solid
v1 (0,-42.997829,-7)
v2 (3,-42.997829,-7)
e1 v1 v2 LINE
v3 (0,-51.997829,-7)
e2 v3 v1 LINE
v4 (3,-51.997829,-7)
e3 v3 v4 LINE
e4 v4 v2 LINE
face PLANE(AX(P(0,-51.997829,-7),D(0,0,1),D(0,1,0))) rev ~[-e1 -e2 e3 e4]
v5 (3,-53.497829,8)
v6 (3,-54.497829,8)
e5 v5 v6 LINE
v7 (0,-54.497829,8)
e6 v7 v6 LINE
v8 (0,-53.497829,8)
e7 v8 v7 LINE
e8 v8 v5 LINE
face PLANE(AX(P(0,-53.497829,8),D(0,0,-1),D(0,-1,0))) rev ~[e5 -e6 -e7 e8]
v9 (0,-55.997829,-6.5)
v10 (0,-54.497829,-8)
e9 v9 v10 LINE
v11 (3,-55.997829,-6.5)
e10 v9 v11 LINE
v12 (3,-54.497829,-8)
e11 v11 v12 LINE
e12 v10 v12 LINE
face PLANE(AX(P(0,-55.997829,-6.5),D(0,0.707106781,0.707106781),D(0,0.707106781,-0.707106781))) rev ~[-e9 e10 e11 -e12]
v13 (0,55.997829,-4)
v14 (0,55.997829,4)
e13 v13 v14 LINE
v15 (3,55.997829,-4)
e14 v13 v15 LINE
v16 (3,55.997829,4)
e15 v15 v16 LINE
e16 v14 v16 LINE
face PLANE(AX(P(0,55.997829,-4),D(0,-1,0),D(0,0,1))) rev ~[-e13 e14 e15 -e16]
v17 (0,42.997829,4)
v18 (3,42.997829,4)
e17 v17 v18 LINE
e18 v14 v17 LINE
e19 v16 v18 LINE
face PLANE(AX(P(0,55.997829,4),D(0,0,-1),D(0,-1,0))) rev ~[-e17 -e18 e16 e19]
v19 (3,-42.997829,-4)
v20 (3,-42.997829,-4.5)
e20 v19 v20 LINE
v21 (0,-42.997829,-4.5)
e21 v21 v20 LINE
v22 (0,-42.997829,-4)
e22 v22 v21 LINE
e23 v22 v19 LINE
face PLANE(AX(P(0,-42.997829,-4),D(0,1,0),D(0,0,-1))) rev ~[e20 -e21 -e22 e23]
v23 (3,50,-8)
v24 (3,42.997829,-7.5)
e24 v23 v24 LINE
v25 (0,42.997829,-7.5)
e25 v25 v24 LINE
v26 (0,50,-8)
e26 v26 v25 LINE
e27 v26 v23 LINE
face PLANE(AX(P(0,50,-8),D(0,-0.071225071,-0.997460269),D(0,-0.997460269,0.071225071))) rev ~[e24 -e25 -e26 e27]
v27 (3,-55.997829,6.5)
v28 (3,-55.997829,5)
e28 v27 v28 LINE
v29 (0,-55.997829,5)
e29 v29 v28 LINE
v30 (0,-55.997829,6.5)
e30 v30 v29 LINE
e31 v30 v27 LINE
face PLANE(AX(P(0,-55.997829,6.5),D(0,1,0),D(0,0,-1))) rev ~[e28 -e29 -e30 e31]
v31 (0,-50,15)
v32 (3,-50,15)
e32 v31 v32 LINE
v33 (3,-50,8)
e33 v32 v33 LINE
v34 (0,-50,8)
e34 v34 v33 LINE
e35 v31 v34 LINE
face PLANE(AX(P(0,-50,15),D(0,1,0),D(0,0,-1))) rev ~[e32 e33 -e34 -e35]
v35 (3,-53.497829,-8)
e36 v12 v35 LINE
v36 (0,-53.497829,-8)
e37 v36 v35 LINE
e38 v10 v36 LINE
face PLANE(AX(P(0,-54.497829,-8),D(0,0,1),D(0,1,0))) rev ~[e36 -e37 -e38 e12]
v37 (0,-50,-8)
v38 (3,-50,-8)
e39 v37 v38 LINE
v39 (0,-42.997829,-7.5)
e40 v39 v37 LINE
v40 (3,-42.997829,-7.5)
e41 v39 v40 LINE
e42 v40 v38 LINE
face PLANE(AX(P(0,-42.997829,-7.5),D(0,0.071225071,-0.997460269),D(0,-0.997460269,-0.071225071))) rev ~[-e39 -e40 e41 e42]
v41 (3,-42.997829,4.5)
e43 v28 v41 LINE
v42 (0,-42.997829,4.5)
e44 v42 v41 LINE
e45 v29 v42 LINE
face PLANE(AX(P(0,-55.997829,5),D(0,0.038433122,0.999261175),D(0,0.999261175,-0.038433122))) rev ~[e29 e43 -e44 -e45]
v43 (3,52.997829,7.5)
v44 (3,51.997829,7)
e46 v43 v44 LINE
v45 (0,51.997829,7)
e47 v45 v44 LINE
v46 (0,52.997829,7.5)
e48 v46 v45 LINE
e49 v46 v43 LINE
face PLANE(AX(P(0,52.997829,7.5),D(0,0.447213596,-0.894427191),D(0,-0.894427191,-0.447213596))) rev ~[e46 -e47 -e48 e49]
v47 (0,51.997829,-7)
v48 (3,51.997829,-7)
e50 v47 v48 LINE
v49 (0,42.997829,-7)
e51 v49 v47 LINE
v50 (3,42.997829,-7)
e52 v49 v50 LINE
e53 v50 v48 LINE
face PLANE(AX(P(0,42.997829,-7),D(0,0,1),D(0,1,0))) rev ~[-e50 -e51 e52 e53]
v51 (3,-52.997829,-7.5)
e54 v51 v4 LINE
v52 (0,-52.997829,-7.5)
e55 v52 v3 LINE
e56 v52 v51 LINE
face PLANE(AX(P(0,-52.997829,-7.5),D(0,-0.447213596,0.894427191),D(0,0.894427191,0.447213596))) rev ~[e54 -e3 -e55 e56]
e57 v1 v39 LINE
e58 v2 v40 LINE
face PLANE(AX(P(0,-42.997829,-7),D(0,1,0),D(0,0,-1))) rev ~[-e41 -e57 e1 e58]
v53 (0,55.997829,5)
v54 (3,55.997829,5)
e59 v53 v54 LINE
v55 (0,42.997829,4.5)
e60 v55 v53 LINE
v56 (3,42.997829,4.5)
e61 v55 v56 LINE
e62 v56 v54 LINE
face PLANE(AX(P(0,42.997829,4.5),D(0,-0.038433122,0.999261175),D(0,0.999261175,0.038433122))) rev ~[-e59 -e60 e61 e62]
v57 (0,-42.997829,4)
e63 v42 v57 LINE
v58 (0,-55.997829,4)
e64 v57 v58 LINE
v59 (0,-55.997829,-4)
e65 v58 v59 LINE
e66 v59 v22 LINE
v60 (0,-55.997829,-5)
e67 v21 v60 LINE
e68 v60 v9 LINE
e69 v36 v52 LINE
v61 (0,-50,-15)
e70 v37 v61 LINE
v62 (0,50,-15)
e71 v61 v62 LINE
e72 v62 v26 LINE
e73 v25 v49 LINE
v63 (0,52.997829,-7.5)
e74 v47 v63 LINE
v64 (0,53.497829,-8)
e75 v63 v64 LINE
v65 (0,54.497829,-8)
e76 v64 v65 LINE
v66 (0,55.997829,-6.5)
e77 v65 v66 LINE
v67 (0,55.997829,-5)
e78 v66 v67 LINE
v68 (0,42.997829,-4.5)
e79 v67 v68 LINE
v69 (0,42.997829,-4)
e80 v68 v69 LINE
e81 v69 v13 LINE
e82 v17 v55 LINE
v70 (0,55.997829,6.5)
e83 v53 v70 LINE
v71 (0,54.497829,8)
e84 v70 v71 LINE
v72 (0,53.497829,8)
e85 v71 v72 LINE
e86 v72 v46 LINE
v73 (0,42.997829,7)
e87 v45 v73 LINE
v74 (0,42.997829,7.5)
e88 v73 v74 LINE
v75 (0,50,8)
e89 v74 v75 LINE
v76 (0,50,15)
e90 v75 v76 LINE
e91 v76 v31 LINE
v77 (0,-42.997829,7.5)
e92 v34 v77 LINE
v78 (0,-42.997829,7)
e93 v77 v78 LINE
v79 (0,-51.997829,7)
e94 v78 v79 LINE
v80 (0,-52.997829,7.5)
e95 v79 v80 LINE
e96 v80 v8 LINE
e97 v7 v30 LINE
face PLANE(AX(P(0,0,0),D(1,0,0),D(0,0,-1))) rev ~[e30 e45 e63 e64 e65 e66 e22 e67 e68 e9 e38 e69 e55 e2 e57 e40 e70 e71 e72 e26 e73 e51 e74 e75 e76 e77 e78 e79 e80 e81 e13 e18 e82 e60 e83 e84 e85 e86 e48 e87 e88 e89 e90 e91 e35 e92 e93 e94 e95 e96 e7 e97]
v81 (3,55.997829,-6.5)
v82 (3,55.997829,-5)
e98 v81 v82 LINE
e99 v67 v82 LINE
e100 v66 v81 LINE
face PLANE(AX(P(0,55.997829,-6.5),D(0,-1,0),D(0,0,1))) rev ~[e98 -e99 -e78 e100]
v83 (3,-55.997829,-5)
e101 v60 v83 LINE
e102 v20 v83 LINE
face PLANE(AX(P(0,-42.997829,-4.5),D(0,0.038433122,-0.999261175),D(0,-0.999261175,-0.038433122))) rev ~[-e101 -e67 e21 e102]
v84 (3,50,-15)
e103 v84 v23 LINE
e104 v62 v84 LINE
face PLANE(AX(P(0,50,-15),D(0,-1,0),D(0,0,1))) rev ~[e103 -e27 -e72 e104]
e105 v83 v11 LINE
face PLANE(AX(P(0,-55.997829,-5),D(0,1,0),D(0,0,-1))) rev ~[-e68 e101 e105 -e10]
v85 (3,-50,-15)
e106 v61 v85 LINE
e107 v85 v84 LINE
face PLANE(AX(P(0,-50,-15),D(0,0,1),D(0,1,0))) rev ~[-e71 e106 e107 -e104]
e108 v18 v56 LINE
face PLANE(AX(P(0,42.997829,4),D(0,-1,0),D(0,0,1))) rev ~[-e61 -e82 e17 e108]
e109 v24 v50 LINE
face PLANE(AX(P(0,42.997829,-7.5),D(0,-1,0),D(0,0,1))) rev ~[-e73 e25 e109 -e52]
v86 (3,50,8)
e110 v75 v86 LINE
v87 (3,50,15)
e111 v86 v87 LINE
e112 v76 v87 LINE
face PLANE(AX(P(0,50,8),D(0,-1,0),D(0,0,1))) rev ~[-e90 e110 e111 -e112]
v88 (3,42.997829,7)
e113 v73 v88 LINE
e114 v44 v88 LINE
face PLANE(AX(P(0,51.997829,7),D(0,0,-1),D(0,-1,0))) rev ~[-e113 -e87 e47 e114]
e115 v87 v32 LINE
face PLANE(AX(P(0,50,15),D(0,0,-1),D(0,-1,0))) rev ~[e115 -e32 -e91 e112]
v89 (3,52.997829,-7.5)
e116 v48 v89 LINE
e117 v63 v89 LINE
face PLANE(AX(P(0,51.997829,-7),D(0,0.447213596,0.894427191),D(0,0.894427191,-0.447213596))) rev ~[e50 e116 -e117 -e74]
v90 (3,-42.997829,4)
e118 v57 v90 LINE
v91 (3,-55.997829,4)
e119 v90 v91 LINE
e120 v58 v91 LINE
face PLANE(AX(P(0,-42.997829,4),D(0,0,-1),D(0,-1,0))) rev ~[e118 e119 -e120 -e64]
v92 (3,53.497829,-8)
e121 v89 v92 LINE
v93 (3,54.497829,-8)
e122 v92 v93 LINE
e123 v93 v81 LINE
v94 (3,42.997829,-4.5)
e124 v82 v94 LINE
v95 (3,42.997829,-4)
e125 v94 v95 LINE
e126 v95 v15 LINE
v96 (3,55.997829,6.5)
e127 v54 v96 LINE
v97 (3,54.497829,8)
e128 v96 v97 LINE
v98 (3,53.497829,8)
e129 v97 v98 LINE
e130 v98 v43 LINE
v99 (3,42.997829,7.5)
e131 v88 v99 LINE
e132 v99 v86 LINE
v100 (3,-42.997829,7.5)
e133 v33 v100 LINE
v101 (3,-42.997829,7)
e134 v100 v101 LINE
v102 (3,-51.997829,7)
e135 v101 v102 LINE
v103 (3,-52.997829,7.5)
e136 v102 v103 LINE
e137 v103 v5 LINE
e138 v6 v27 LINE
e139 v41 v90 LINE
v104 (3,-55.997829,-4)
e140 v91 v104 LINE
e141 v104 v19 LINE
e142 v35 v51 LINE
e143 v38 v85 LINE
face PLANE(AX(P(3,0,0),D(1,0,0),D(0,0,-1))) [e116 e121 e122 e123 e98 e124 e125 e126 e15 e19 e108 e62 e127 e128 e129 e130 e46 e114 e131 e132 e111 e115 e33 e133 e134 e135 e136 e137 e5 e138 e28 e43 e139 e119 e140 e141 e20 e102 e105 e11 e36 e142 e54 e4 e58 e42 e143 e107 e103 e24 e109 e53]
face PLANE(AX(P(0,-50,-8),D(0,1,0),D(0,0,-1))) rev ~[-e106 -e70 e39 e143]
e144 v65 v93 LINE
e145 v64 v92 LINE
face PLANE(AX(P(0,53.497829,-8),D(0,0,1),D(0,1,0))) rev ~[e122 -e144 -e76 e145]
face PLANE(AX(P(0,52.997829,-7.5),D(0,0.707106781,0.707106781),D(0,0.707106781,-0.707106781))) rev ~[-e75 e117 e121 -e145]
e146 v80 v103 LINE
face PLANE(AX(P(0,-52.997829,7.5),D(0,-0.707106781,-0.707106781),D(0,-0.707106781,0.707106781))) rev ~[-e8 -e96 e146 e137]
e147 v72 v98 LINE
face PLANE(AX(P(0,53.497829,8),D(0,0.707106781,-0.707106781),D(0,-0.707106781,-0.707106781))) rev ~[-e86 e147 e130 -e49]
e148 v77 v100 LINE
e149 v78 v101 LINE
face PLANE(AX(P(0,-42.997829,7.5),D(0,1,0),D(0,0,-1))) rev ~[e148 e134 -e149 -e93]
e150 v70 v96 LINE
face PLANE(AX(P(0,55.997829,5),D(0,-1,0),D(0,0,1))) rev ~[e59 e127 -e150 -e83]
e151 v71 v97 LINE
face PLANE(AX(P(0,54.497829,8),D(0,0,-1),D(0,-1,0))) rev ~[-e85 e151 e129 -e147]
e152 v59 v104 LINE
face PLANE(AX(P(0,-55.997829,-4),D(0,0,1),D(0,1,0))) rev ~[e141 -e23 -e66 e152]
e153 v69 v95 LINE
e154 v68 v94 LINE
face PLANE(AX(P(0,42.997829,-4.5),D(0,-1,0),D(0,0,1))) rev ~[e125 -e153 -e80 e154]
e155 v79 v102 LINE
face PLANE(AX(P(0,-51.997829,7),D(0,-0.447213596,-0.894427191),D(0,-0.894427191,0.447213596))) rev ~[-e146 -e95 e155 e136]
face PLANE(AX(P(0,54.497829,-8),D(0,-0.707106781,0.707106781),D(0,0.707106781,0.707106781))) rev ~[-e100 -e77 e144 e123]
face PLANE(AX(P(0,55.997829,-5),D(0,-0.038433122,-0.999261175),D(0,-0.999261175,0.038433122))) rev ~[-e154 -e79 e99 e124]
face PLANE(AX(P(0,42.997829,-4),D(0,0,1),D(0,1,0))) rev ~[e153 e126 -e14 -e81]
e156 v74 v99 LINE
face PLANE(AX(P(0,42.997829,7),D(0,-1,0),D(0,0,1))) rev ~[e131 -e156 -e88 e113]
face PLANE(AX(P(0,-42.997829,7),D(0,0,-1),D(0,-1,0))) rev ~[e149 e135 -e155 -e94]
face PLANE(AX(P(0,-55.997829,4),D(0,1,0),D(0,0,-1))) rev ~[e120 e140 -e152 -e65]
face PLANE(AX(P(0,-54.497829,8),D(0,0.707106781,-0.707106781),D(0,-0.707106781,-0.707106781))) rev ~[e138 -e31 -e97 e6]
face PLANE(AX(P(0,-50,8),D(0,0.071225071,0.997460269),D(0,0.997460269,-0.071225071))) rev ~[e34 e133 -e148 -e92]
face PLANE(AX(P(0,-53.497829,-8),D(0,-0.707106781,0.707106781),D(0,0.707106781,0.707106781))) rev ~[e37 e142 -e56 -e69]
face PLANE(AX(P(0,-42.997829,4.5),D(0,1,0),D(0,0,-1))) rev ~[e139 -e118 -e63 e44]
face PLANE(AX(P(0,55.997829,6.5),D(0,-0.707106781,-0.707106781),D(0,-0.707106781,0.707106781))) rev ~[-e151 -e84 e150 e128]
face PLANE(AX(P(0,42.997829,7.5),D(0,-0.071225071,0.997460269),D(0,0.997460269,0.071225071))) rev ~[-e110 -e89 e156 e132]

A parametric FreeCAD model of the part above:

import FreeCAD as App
import Part
import Sketcher
Q = App.Units.Quantity

doc = App.newDocument("Part")
body = doc.addObject("PartDesign::Body", "Body")

sketch1 = doc.addObject("Sketcher::SketchObject", "Sketch")
body.addObject(sketch1)
sketch1.AttachmentSupport = (doc.YZ_Plane, [""])
sketch1.MapMode = "FlatFace"
sketch1.addGeometry([
    Part.LineSegment(App.Vector(-50, 15, 0), App.Vector(-50, 8, 0)),
    Part.LineSegment(App.Vector(-50, 8, 0), App.Vector(-43, 7.5, 0)),
    Part.LineSegment(App.Vector(-43, 7.5, 0), App.Vector(-43, 7, 0)),
    Part.LineSegment(App.Vector(-43, 7, 0), App.Vector(-52, 7, 0)),
    Part.LineSegment(App.Vector(-52, 7, 0), App.Vector(-53, 7.5, 0)),
    Part.LineSegment(App.Vector(-53, 7.5, 0), App.Vector(-53.5, 8, 0)),
    Part.LineSegment(App.Vector(-53.5, 8, 0), App.Vector(-54.5, 8, 0)),
    Part.LineSegment(App.Vector(-54.5, 8, 0), App.Vector(-56, 6.5, 0)),
    Part.LineSegment(App.Vector(-56, 6.5, 0), App.Vector(-56, 5, 0)),
    Part.LineSegment(App.Vector(-56, 5, 0), App.Vector(-43, 4.5, 0)),
    Part.LineSegment(App.Vector(-43, 4.5, 0), App.Vector(-43, 4, 0)),
    Part.LineSegment(App.Vector(-43, 4, 0), App.Vector(-56, 4, 0)),
    Part.LineSegment(App.Vector(-56, 4, 0), App.Vector(-56, -4, 0)),
    Part.LineSegment(App.Vector(-56, -4, 0), App.Vector(-43, -4, 0)),
    Part.LineSegment(App.Vector(-43, -4, 0), App.Vector(-43, -4.5, 0)),
    Part.LineSegment(App.Vector(-43, -4.5, 0), App.Vector(-56, -5, 0)),
    Part.LineSegment(App.Vector(-56, -5, 0), App.Vector(-56, -6.5, 0)),
    Part.LineSegment(App.Vector(-56, -6.5, 0), App.Vector(-54.5, -8, 0)),
    Part.LineSegment(App.Vector(-54.5, -8, 0), App.Vector(-53.5, -8, 0)),
    Part.LineSegment(App.Vector(-53.5, -8, 0), App.Vector(-53, -7.5, 0)),
    Part.LineSegment(App.Vector(-53, -7.5, 0), App.Vector(-52, -7, 0)),
    Part.LineSegment(App.Vector(-52, -7, 0), App.Vector(-43, -7, 0)),
    Part.LineSegment(App.Vector(-43, -7, 0), App.Vector(-43, -7.5, 0)),
    Part.LineSegment(App.Vector(-43, -7.5, 0), App.Vector(-50, -8, 0)),
    Part.LineSegment(App.Vector(-50, -8, 0), App.Vector(-50, -15, 0)),
    Part.LineSegment(App.Vector(-50, -15, 0), App.Vector(50, -15, 0)),
    Part.LineSegment(App.Vector(50, -15, 0), App.Vector(50, -8, 0)),
    Part.LineSegment(App.Vector(50, -8, 0), App.Vector(43, -7.5, 0)),
    Part.LineSegment(App.Vector(43, -7.5, 0), App.Vector(43, -7, 0)),
    Part.LineSegment(App.Vector(43, -7, 0), App.Vector(52, -7, 0)),
    Part.LineSegment(App.Vector(52, -7, 0), App.Vector(53, -7.5, 0)),
    Part.LineSegment(App.Vector(53, -7.5, 0), App.Vector(53.5, -8, 0)),
    Part.LineSegment(App.Vector(53.5, -8, 0), App.Vector(54.5, -8, 0)),
    Part.LineSegment(App.Vector(54.5, -8, 0), App.Vector(56, -6.5, 0)),
    Part.LineSegment(App.Vector(56, -6.5, 0), App.Vector(56, -5, 0)),
    Part.LineSegment(App.Vector(56, -5, 0), App.Vector(43, -4.5, 0)),
    Part.LineSegment(App.Vector(43, -4.5, 0), App.Vector(43, -4, 0)),
    Part.LineSegment(App.Vector(43, -4, 0), App.Vector(56, -4, 0)),
    Part.LineSegment(App.Vector(56, -4, 0), App.Vector(56, 4, 0)),
    Part.LineSegment(App.Vector(56, 4, 0), App.Vector(43, 4, 0)),
    Part.LineSegment(App.Vector(43, 4, 0), App.Vector(43, 4.5, 0)),
    Part.LineSegment(App.Vector(43, 4.5, 0), App.Vector(56, 5, 0)),
    Part.LineSegment(App.Vector(56, 5, 0), App.Vector(56, 6.5, 0)),
    Part.LineSegment(App.Vector(56, 6.5, 0), App.Vector(54.5, 8, 0)),
    Part.LineSegment(App.Vector(54.5, 8, 0), App.Vector(53.5, 8, 0)),
    Part.LineSegment(App.Vector(53.5, 8, 0), App.Vector(53, 7.5, 0)),
    Part.LineSegment(App.Vector(53, 7.5, 0), App.Vector(52, 7, 0)),
    Part.LineSegment(App.Vector(52, 7, 0), App.Vector(43, 7, 0)),
    Part.LineSegment(App.Vector(43, 7, 0), App.Vector(43, 7.5, 0)),
    Part.LineSegment(App.Vector(43, 7.5, 0), App.Vector(50, 8, 0)),
    Part.LineSegment(App.Vector(50, 8, 0), App.Vector(50, 15, 0)),
    Part.LineSegment(App.Vector(50, 15, 0), App.Vector(-50, 15, 0)),
], False)
sketch1.addConstraint([
    Sketcher.Constraint("Coincident", 0, 2, 1, 1),
    Sketcher.Constraint("Coincident", 1, 2, 2, 1),
    Sketcher.Constraint("Coincident", 2, 2, 3, 1),
    Sketcher.Constraint("Coincident", 3, 2, 4, 1),
    Sketcher.Constraint("Coincident", 4, 2, 5, 1),
    Sketcher.Constraint("Coincident", 5, 2, 6, 1),
    Sketcher.Constraint("Coincident", 6, 2, 7, 1),
    Sketcher.Constraint("Coincident", 7, 2, 8, 1),
    Sketcher.Constraint("Coincident", 8, 2, 9, 1),
    Sketcher.Constraint("Coincident", 9, 2, 10, 1),
    Sketcher.Constraint("Coincident", 10, 2, 11, 1),
    Sketcher.Constraint("Coincident", 11, 2, 12, 1),
    Sketcher.Constraint("Coincident", 12, 2, 13, 1),
    Sketcher.Constraint("Coincident", 13, 2, 14, 1),
    Sketcher.Constraint("Coincident", 14, 2, 15, 1),
    Sketcher.Constraint("Coincident", 15, 2, 16, 1),
    Sketcher.Constraint("Coincident", 16, 2, 17, 1),
    Sketcher.Constraint("Coincident", 17, 2, 18, 1),
    Sketcher.Constraint("Coincident", 18, 2, 19, 1),
    Sketcher.Constraint("Coincident", 19, 2, 20, 1),
    Sketcher.Constraint("Coincident", 20, 2, 21, 1),
    Sketcher.Constraint("Coincident", 21, 2, 22, 1),
    Sketcher.Constraint("Coincident", 22, 2, 23, 1),
    Sketcher.Constraint("Coincident", 23, 2, 24, 1),
    Sketcher.Constraint("Coincident", 24, 2, 25, 1),
    Sketcher.Constraint("Coincident", 25, 2, 26, 1),
    Sketcher.Constraint("Coincident", 26, 2, 27, 1),
    Sketcher.Constraint("Coincident", 27, 2, 28, 1),
    Sketcher.Constraint("Coincident", 28, 2, 29, 1),
    Sketcher.Constraint("Coincident", 29, 2, 30, 1),
    Sketcher.Constraint("Coincident", 30, 2, 31, 1),
    Sketcher.Constraint("Coincident", 31, 2, 32, 1),
    Sketcher.Constraint("Coincident", 32, 2, 33, 1),
    Sketcher.Constraint("Coincident", 33, 2, 34, 1),
    Sketcher.Constraint("Coincident", 34, 2, 35, 1),
    Sketcher.Constraint("Coincident", 35, 2, 36, 1),
    Sketcher.Constraint("Coincident", 36, 2, 37, 1),
    Sketcher.Constraint("Coincident", 37, 2, 38, 1),
    Sketcher.Constraint("Coincident", 38, 2, 39, 1),
    Sketcher.Constraint("Coincident", 39, 2, 40, 1),
    Sketcher.Constraint("Coincident", 40, 2, 41, 1),
    Sketcher.Constraint("Coincident", 41, 2, 42, 1),
    Sketcher.Constraint("Coincident", 42, 2, 43, 1),
    Sketcher.Constraint("Coincident", 43, 2, 44, 1),
    Sketcher.Constraint("Coincident", 44, 2, 45, 1),
    Sketcher.Constraint("Coincident", 45, 2, 46, 1),
    Sketcher.Constraint("Coincident", 46, 2, 47, 1),
    Sketcher.Constraint("Coincident", 47, 2, 48, 1),
    Sketcher.Constraint("Coincident", 48, 2, 49, 1),
    Sketcher.Constraint("Coincident", 49, 2, 50, 1),
    Sketcher.Constraint("Coincident", 50, 2, 51, 1),
    Sketcher.Constraint("Coincident", 51, 2, 0, 1),
    Sketcher.Constraint("Vertical", 0),
    Sketcher.Constraint("Vertical", 2),
    Sketcher.Constraint("Horizontal", 3),
    Sketcher.Constraint("Horizontal", 6),
    Sketcher.Constraint("Vertical", 8),
    Sketcher.Constraint("Vertical", 10),
    Sketcher.Constraint("Horizontal", 11),
    Sketcher.Constraint("Vertical", 12),
    Sketcher.Constraint("Horizontal", 13),
    Sketcher.Constraint("Vertical", 14),
    Sketcher.Constraint("Vertical", 16),
    Sketcher.Constraint("Horizontal", 18),
    Sketcher.Constraint("Horizontal", 21),
    Sketcher.Constraint("Vertical", 22),
    Sketcher.Constraint("Vertical", 24),
    Sketcher.Constraint("Horizontal", 25),
    Sketcher.Constraint("Vertical", 26),
    Sketcher.Constraint("Vertical", 28),
    Sketcher.Constraint("Horizontal", 29),
    Sketcher.Constraint("Horizontal", 32),
    Sketcher.Constraint("Vertical", 34),
    Sketcher.Constraint("Vertical", 36),
    Sketcher.Constraint("Horizontal", 37),
    Sketcher.Constraint("Vertical", 38),
    Sketcher.Constraint("Horizontal", 39),
    Sketcher.Constraint("Vertical", 40),
    Sketcher.Constraint("Vertical", 42),
    Sketcher.Constraint("Horizontal", 44),
    Sketcher.Constraint("Horizontal", 47),
    Sketcher.Constraint("Vertical", 48),
    Sketcher.Constraint("Vertical", 50),
    Sketcher.Constraint("Horizontal", 51),
    Sketcher.Constraint("Symmetric", 0, 2, 26, 2, -1, 1),
    Sketcher.Constraint("Symmetric", 1, 2, 27, 2, -1, 1),
    Sketcher.Constraint("Symmetric", 3, 2, 29, 2, -1, 1),
    Sketcher.Constraint("Symmetric", 4, 2, 30, 2, -1, 1),
    Sketcher.Constraint("Symmetric", 5, 2, 31, 2, -1, 1),
    Sketcher.Constraint("Symmetric", 7, 2, 33, 2, -1, 1),
    Sketcher.Constraint("Symmetric", 9, 2, 35, 2, -1, 1),
    Sketcher.Constraint("Symmetric", 11, 2, 37, 2, -1, 1),
    Sketcher.Constraint("Symmetric", 13, 2, 39, 2, -1, 1),
    Sketcher.Constraint("Symmetric", 15, 2, 41, 2, -1, 1),
    Sketcher.Constraint("Symmetric", 17, 2, 43, 2, -1, 1),
    Sketcher.Constraint("Symmetric", 19, 2, 45, 2, -1, 1),
    Sketcher.Constraint("Symmetric", 20, 2, 46, 2, -1, 1),
    Sketcher.Constraint("Symmetric", 22, 2, 48, 2, -1, 1),
    Sketcher.Constraint("Symmetric", 23, 2, 49, 2, -1, 1),
    Sketcher.Constraint("Symmetric", 23, 2, 26, 2, -2),
    Sketcher.Constraint("Symmetric", 22, 2, 27, 2, -2),
    Sketcher.Constraint("Symmetric", 20, 2, 29, 2, -2),
    Sketcher.Constraint("Symmetric", 19, 2, 30, 2, -2),
    Sketcher.Constraint("Symmetric", 18, 2, 31, 2, -2),
    Sketcher.Constraint("Symmetric", 16, 2, 33, 2, -2),
    Sketcher.Constraint("Symmetric", 14, 2, 35, 2, -2),
    Sketcher.Constraint("Perpendicular", 5, 7),
    Sketcher.Constraint("Perpendicular", 7, 17),
    Sketcher.Constraint("Perpendicular", 17, 19),
    Sketcher.Constraint("Perpendicular", 31, 33),
    Sketcher.Constraint("Parallel", 9, 35),
    Sketcher.Constraint("Parallel", 15, 41),
    Sketcher.Constraint("Perpendicular", 33, 43),
    Sketcher.Constraint("Perpendicular", 43, 45),
    Sketcher.Constraint("Horizontal", 1, 2, 4, 2),
    Sketcher.Constraint("Horizontal", 0, 2, 5, 2),
    Sketcher.Constraint("Horizontal", 15, 2, 34, 2),
    Sketcher.Constraint("Horizontal", 13, 2, 36, 2),
    Sketcher.Constraint("Vertical", 2, 2, 9, 2),
    Sketcher.Constraint("Vertical", 8, 2, 11, 2),
    Sketcher.Constraint("Equal", 2, 10),
    Sketcher.Constraint("Equal", 0, 24),
    Sketcher.Constraint("DistanceX", 3, 2, 3, 1, Q("9 mm")),
    Sketcher.Constraint("DistanceX", 6, 2, 6, 1, Q("1 mm")),
    Sketcher.Constraint("DistanceX", 11, 2, 11, 1, Q("13 mm")),
    Sketcher.Constraint("DistanceX", 25, 1, 25, 2, Q("100 mm")),
    Sketcher.Constraint("DistanceY", 0, 2, 0, 1, Q("7 mm")),
    Sketcher.Constraint("DistanceY", 12, 2, 12, 1, Q("8 mm")),
    Sketcher.Constraint("DistanceY", 2, 2, 2, 1, Q("0.5 mm")),
    Sketcher.Constraint("DistanceY", 8, 2, 8, 1, Q("1.5 mm")),
    Sketcher.Constraint("DistanceY", -1, 1, 0, 2, Q("8 mm")),
    Sketcher.Constraint("DistanceY", -1, 1, 2, 2, Q("7 mm")),
    Sketcher.Constraint("DistanceY", -1, 1, 8, 2, Q("5 mm")),
    Sketcher.Constraint("Distance", 1, Q("7.02 mm")),
])
pad1 = doc.addObject("PartDesign::Pad", "Pad")
body.addObject(pad1)
pad1.Profile = sketch1
pad1.Length = 3

doc.recompute()
